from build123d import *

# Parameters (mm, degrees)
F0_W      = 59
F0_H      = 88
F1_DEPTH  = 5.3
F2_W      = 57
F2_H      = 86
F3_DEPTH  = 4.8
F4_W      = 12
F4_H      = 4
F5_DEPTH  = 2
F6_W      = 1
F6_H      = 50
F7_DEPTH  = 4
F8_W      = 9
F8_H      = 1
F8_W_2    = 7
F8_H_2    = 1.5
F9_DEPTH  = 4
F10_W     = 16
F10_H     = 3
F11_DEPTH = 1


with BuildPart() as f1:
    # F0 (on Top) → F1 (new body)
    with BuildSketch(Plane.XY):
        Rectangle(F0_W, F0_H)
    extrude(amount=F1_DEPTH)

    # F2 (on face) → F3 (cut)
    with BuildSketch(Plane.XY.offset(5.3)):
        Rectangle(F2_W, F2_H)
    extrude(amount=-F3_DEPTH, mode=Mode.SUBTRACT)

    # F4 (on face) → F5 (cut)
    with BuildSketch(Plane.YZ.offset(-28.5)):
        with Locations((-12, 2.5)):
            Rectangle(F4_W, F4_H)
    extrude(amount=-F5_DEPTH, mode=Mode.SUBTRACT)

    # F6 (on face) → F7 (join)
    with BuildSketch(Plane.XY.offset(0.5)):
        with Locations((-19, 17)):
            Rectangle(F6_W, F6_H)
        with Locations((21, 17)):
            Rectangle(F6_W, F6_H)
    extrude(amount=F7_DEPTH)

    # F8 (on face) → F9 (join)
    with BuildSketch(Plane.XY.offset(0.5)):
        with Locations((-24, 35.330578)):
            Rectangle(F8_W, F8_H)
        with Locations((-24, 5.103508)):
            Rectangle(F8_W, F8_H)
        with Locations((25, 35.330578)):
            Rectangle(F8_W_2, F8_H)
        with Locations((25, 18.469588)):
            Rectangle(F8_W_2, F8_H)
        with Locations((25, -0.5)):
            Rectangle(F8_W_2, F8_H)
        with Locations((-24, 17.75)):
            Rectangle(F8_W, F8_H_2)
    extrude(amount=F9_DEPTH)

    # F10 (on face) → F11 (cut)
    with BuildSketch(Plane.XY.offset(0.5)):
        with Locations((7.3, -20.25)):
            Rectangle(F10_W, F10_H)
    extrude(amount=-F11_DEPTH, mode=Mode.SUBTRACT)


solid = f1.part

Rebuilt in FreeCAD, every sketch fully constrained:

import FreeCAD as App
import Part
import Sketcher

V = App.Vector
Q = App.Units.Quantity


def add_polygon(sketch, points):
    """Adds a closed chain of lines whose ends are joined by coincident constraints."""
    first, n = sketch.GeometryCount, len(points)
    for a, b in zip(points, points[1:] + points[:1]):
        sketch.addGeometry(Part.LineSegment(App.Vector(*a, 0), App.Vector(*b, 0)), False)
    for i in range(n):
        sketch.addConstraint(Sketcher.Constraint("Coincident", first + i, 2, first + (i + 1) % n, 1))

doc = App.newDocument("Part")
params = doc.addObject("Spreadsheet::Sheet", "Params")
for row, (alias, value) in enumerate([
    ("sketch1_width", "59 mm"),
    ("sketch1_height", "88 mm"),
    ("pad1_length", "5.3 mm"),
    ("sketch2_width", "57 mm"),
    ("sketch2_height", "86 mm"),
    ("pocket1_length", "4.8 mm"),
    ("sketch3_width", "12 mm"),
    ("sketch3_height", "4 mm"),
    ("pocket2_length", "2 mm"),
    ("sketch4_width", "1 mm"),
    ("sketch4_height", "50 mm"),
    ("pad2_length", "4 mm"),
    ("sketch5_width", "9 mm"),
    ("sketch5_width2", "7 mm"),
    ("sketch5_height", "1 mm"),
    ("sketch5_height2", "1.5 mm"),
    ("pad3_length", "4 mm"),
    ("sketch6_width", "16 mm"),
    ("sketch6_height", "3 mm"),
    ("pocket3_length", "1 mm"),
], start=1):
    params.set(f"A{row}", alias)
    params.set(f"B{row}", "=" + value)
    params.setAlias(f"B{row}", alias)

body = doc.addObject("PartDesign::Body", "Body")

sketch1 = body.newObject("Sketcher::SketchObject", "Sketch")
sketch1.AttachmentSupport = (doc.getObject("XY_Plane"), [""])
sketch1.MapMode = "FlatFace"
add_polygon(sketch1, [(-29.5, 44), (-29.5, -44), (29.5, -44), (29.5, 44)])
sketch1.addConstraint([
    Sketcher.Constraint("Vertical", 0),
    Sketcher.Constraint("Horizontal", 1),
    Sketcher.Constraint("Vertical", 2),
    Sketcher.Constraint("Horizontal", 3),
    Sketcher.Constraint("Symmetric", 0, 2, 2, 2, -1, 1),
    Sketcher.Constraint("DistanceX", 1, 1, 1, 2, Q("59 mm")),
    Sketcher.Constraint("DistanceY", 0, 2, 0, 1, Q("88 mm")),
])
sketch1.setExpression("Constraints[9]", "Params.sketch1_width")
sketch1.setExpression("Constraints[10]", "Params.sketch1_height")
pad1 = body.newObject("PartDesign::Pad", "Pad")
pad1.Profile = sketch1
pad1.setExpression("Length", "Params.pad1_length")

sketch2 = body.newObject("Sketcher::SketchObject", "Sketch001")
sketch2.AttachmentSupport = (doc.getObject("XY_Plane"), [""])
sketch2.MapMode = "FlatFace"
sketch2.AttachmentOffset = App.Placement(V(0, 0, 5.3), App.Rotation())
add_polygon(sketch2, [(-28.5, 43), (-28.5, -43), (28.5, -43), (28.5, 43)])
sketch2.addConstraint([
    Sketcher.Constraint("Vertical", 0),
    Sketcher.Constraint("Horizontal", 1),
    Sketcher.Constraint("Vertical", 2),
    Sketcher.Constraint("Horizontal", 3),
    Sketcher.Constraint("Symmetric", 0, 2, 2, 2, -1, 1),
    Sketcher.Constraint("DistanceX", 1, 1, 1, 2, Q("57 mm")),
    Sketcher.Constraint("DistanceY", 0, 2, 0, 1, Q("86 mm")),
])
sketch2.setExpression("Constraints[9]", "Params.sketch2_width")
sketch2.setExpression("Constraints[10]", "Params.sketch2_height")
pocket1 = body.newObject("PartDesign::Pocket", "Pocket")
pocket1.Profile = sketch2
pocket1.setExpression("Length", "Params.pocket1_length")

sketch3 = body.newObject("Sketcher::SketchObject", "Sketch002")
sketch3.AttachmentSupport = (doc.getObject("YZ_Plane"), [""])
sketch3.MapMode = "FlatFace"
sketch3.AttachmentOffset = App.Placement(V(0, 0, -28.5), App.Rotation())
add_polygon(sketch3, [(-18, 4.5), (-18, 0.5), (-6, 0.5), (-6, 4.5)])
sketch3.addConstraint([
    Sketcher.Constraint("Vertical", 0),
    Sketcher.Constraint("Horizontal", 1),
    Sketcher.Constraint("Vertical", 2),
    Sketcher.Constraint("Horizontal", 3),
    Sketcher.Constraint("DistanceX", 1, 1, 1, 2, Q("12 mm")),
    Sketcher.Constraint("DistanceY", 0, 2, 0, 1, Q("4 mm")),
    Sketcher.Constraint("DistanceX", 0, 2, -1, 1, Q("18 mm")),
    Sketcher.Constraint("DistanceY", -1, 1, 0, 2, Q("0.5 mm")),
])
sketch3.setExpression("Constraints[8]", "Params.sketch3_width")
sketch3.setExpression("Constraints[9]", "Params.sketch3_height")
pocket2 = body.newObject("PartDesign::Pocket", "Pocket001")
pocket2.Profile = sketch3
pocket2.setExpression("Length", "Params.pocket2_length")

sketch4 = body.newObject("Sketcher::SketchObject", "Sketch003")
sketch4.AttachmentSupport = (doc.getObject("XY_Plane"), [""])
sketch4.MapMode = "FlatFace"
sketch4.AttachmentOffset = App.Placement(V(0, 0, 0.5), App.Rotation())
add_polygon(sketch4, [(-19.5, 42), (-19.5, -8), (-18.5, -8), (-18.5, 42)])
add_polygon(sketch4, [(20.5, 42), (20.5, -8), (21.5, -8), (21.5, 42)])
sketch4.addConstraint([
    Sketcher.Constraint("Vertical", 0),
    Sketcher.Constraint("Horizontal", 1),
    Sketcher.Constraint("Vertical", 2),
    Sketcher.Constraint("Horizontal", 3),
    Sketcher.Constraint("Vertical", 4),
    Sketcher.Constraint("Horizontal", 5),
    Sketcher.Constraint("Vertical", 6),
    Sketcher.Constraint("Horizontal", 7),
    Sketcher.Constraint("Horizontal", 1, 2, 4, 2),
    Sketcher.Constraint("Horizontal", 3, 2, 6, 2),
    Sketcher.Constraint("Equal", 3, 5),
    Sketcher.Constraint("DistanceX", 1, 1, 1, 2, Q("1 mm")),
    Sketcher.Constraint("DistanceY", 0, 2, 0, 1, Q("50 mm")),
    Sketcher.Constraint("DistanceY", 0, 2, -1, 1, Q("8 mm")),
    Sketcher.Constraint("DistanceX", 1, 2, 4, 2, Q("39 mm")),
    Sketcher.Constraint("DistanceX", 0, 2, -1, 1, Q("19.5 mm")),
])
sketch4.setExpression("Constraints[19]", "Params.sketch4_width")
sketch4.setExpression("Constraints[20]", "Params.sketch4_height")
pad2 = body.newObject("PartDesign::Pad", "Pad001")
pad2.Profile = sketch4
pad2.setExpression("Length", "Params.pad2_length")

sketch5 = body.newObject("Sketcher::SketchObject", "Sketch004")
sketch5.AttachmentSupport = (doc.getObject("XY_Plane"), [""])
sketch5.MapMode = "FlatFace"
sketch5.AttachmentOffset = App.Placement(V(0, 0, 0.5), App.Rotation())
add_polygon(sketch5, [(-28.5, 35.830578), (-28.5, 34.830578), (-19.5, 34.830578), (-19.5, 35.830578)])
add_polygon(sketch5, [(-28.5, 5.603508), (-28.5, 4.603508), (-19.5, 4.603508), (-19.5, 5.603508)])
add_polygon(sketch5, [(21.5, 35.830578), (21.5, 34.830578), (28.5, 34.830578), (28.5, 35.830578)])
add_polygon(sketch5, [(21.5, 18.969588), (21.5, 17.969588), (28.5, 17.969588), (28.5, 18.969588)])
add_polygon(sketch5, [(21.5, 0), (21.5, -1), (28.5, -1), (28.5, 0)])
add_polygon(sketch5, [(-28.5, 18.5), (-28.5, 17), (-19.5, 17), (-19.5, 18.5)])
sketch5.addConstraint([
    Sketcher.Constraint("Vertical", 0),
    Sketcher.Constraint("Horizontal", 1),
    Sketcher.Constraint("Vertical", 2),
    Sketcher.Constraint("Horizontal", 3),
    Sketcher.Constraint("Vertical", 4),
    Sketcher.Constraint("Horizontal", 5),
    Sketcher.Constraint("Vertical", 6),
    Sketcher.Constraint("Horizontal", 7),
    Sketcher.Constraint("Vertical", 8),
    Sketcher.Constraint("Horizontal", 9),
    Sketcher.Constraint("Vertical", 10),
    Sketcher.Constraint("Horizontal", 11),
    Sketcher.Constraint("Vertical", 12),
    Sketcher.Constraint("Horizontal", 13),
    Sketcher.Constraint("Vertical", 14),
    Sketcher.Constraint("Horizontal", 15),
    Sketcher.Constraint("Vertical", 16),
    Sketcher.Constraint("Horizontal", 17),
    Sketcher.Constraint("Vertical", 18),
    Sketcher.Constraint("Horizontal", 19),
    Sketcher.Constraint("Vertical", 20),
    Sketcher.Constraint("Horizontal", 21),
    Sketcher.Constraint("Vertical", 22),
    Sketcher.Constraint("Horizontal", 23),
    Sketcher.Constraint("Symmetric", 0, 2, 9, 2, -2),
    Sketcher.Constraint("PointOnObject", 18, 2, -1),
    Sketcher.Constraint("Horizontal", 3, 2, 10, 2),
    Sketcher.Constraint("Vertical", 3, 2, 4, 2),
    Sketcher.Constraint("Vertical", 2, 2, 5, 2),
    Sketcher.Constraint("Vertical", 11, 2, 12, 2),
    Sketcher.Constraint("Vertical", 10, 2, 13, 2),
    Sketcher.Constraint("Vertical", 15, 2, 16, 2),
    Sketcher.Constraint("Vertical", 14, 2, 17, 2),
    Sketcher.Constraint("Vertical", 7, 2, 20, 2),
    Sketcher.Constraint("Vertical", 6, 2, 21, 2),
    Sketcher.Constraint("Equal", 2, 4),
    Sketcher.Constraint("Equal", 10, 12),
    Sketcher.Constraint("Equal", 14, 16),
    Sketcher.Constraint("DistanceX", 1, 1, 1, 2, Q("9 mm")),
    Sketcher.Constraint("DistanceX", 9, 1, 9, 2, Q("7 mm")),
    Sketcher.Constraint("DistanceY", 0, 2, 0, 1, Q("1 mm")),
    Sketcher.Constraint("DistanceY", 20, 2, 20, 1, Q("1.5 mm")),
    Sketcher.Constraint("DistanceY", -1, 1, 20, 2, Q("17 mm")),
    Sketcher.Constraint("DistanceX", 1, 2, 8, 2, Q("41 mm")),
    Sketcher.Constraint("DistanceY", -1, 1, 0, 2, Q("34.830578 mm")),
    Sketcher.Constraint("DistanceY", -1, 1, 12, 2, Q("17.969588 mm")),
    Sketcher.Constraint("DistanceY", 4, 2, 0, 2, Q("30.22707 mm")),
])
sketch5.setExpression("Constraints[62]", "Params.sketch5_width")
sketch5.setExpression("Constraints[63]", "Params.sketch5_width2")
sketch5.setExpression("Constraints[64]", "Params.sketch5_height")
sketch5.setExpression("Constraints[65]", "Params.sketch5_height2")
pad3 = body.newObject("PartDesign::Pad", "Pad002")
pad3.Profile = sketch5
pad3.setExpression("Length", "Params.pad3_length")

sketch6 = body.newObject("Sketcher::SketchObject", "Sketch005")
sketch6.AttachmentSupport = (doc.getObject("XY_Plane"), [""])
sketch6.MapMode = "FlatFace"
sketch6.AttachmentOffset = App.Placement(V(0, 0, 0.5), App.Rotation())
add_polygon(sketch6, [(-0.7, -18.75), (-0.7, -21.75), (15.3, -21.75), (15.3, -18.75)])
sketch6.addConstraint([
    Sketcher.Constraint("Vertical", 0),
    Sketcher.Constraint("Horizontal", 1),
    Sketcher.Constraint("Vertical", 2),
    Sketcher.Constraint("Horizontal", 3),
    Sketcher.Constraint("DistanceX", 1, 1, 1, 2, Q("16 mm")),
    Sketcher.Constraint("DistanceY", 0, 2, 0, 1, Q("3 mm")),
    Sketcher.Constraint("DistanceX", 0, 2, -1, 1, Q("0.7 mm")),
    Sketcher.Constraint("DistanceY", 0, 2, -1, 1, Q("21.75 mm")),
])
sketch6.setExpression("Constraints[8]", "Params.sketch6_width")
sketch6.setExpression("Constraints[9]", "Params.sketch6_height")
pocket3 = body.newObject("PartDesign::Pocket", "Pocket002")
pocket3.Profile = sketch6
pocket3.setExpression("Length", "Params.pocket3_length")

doc.recompute()
